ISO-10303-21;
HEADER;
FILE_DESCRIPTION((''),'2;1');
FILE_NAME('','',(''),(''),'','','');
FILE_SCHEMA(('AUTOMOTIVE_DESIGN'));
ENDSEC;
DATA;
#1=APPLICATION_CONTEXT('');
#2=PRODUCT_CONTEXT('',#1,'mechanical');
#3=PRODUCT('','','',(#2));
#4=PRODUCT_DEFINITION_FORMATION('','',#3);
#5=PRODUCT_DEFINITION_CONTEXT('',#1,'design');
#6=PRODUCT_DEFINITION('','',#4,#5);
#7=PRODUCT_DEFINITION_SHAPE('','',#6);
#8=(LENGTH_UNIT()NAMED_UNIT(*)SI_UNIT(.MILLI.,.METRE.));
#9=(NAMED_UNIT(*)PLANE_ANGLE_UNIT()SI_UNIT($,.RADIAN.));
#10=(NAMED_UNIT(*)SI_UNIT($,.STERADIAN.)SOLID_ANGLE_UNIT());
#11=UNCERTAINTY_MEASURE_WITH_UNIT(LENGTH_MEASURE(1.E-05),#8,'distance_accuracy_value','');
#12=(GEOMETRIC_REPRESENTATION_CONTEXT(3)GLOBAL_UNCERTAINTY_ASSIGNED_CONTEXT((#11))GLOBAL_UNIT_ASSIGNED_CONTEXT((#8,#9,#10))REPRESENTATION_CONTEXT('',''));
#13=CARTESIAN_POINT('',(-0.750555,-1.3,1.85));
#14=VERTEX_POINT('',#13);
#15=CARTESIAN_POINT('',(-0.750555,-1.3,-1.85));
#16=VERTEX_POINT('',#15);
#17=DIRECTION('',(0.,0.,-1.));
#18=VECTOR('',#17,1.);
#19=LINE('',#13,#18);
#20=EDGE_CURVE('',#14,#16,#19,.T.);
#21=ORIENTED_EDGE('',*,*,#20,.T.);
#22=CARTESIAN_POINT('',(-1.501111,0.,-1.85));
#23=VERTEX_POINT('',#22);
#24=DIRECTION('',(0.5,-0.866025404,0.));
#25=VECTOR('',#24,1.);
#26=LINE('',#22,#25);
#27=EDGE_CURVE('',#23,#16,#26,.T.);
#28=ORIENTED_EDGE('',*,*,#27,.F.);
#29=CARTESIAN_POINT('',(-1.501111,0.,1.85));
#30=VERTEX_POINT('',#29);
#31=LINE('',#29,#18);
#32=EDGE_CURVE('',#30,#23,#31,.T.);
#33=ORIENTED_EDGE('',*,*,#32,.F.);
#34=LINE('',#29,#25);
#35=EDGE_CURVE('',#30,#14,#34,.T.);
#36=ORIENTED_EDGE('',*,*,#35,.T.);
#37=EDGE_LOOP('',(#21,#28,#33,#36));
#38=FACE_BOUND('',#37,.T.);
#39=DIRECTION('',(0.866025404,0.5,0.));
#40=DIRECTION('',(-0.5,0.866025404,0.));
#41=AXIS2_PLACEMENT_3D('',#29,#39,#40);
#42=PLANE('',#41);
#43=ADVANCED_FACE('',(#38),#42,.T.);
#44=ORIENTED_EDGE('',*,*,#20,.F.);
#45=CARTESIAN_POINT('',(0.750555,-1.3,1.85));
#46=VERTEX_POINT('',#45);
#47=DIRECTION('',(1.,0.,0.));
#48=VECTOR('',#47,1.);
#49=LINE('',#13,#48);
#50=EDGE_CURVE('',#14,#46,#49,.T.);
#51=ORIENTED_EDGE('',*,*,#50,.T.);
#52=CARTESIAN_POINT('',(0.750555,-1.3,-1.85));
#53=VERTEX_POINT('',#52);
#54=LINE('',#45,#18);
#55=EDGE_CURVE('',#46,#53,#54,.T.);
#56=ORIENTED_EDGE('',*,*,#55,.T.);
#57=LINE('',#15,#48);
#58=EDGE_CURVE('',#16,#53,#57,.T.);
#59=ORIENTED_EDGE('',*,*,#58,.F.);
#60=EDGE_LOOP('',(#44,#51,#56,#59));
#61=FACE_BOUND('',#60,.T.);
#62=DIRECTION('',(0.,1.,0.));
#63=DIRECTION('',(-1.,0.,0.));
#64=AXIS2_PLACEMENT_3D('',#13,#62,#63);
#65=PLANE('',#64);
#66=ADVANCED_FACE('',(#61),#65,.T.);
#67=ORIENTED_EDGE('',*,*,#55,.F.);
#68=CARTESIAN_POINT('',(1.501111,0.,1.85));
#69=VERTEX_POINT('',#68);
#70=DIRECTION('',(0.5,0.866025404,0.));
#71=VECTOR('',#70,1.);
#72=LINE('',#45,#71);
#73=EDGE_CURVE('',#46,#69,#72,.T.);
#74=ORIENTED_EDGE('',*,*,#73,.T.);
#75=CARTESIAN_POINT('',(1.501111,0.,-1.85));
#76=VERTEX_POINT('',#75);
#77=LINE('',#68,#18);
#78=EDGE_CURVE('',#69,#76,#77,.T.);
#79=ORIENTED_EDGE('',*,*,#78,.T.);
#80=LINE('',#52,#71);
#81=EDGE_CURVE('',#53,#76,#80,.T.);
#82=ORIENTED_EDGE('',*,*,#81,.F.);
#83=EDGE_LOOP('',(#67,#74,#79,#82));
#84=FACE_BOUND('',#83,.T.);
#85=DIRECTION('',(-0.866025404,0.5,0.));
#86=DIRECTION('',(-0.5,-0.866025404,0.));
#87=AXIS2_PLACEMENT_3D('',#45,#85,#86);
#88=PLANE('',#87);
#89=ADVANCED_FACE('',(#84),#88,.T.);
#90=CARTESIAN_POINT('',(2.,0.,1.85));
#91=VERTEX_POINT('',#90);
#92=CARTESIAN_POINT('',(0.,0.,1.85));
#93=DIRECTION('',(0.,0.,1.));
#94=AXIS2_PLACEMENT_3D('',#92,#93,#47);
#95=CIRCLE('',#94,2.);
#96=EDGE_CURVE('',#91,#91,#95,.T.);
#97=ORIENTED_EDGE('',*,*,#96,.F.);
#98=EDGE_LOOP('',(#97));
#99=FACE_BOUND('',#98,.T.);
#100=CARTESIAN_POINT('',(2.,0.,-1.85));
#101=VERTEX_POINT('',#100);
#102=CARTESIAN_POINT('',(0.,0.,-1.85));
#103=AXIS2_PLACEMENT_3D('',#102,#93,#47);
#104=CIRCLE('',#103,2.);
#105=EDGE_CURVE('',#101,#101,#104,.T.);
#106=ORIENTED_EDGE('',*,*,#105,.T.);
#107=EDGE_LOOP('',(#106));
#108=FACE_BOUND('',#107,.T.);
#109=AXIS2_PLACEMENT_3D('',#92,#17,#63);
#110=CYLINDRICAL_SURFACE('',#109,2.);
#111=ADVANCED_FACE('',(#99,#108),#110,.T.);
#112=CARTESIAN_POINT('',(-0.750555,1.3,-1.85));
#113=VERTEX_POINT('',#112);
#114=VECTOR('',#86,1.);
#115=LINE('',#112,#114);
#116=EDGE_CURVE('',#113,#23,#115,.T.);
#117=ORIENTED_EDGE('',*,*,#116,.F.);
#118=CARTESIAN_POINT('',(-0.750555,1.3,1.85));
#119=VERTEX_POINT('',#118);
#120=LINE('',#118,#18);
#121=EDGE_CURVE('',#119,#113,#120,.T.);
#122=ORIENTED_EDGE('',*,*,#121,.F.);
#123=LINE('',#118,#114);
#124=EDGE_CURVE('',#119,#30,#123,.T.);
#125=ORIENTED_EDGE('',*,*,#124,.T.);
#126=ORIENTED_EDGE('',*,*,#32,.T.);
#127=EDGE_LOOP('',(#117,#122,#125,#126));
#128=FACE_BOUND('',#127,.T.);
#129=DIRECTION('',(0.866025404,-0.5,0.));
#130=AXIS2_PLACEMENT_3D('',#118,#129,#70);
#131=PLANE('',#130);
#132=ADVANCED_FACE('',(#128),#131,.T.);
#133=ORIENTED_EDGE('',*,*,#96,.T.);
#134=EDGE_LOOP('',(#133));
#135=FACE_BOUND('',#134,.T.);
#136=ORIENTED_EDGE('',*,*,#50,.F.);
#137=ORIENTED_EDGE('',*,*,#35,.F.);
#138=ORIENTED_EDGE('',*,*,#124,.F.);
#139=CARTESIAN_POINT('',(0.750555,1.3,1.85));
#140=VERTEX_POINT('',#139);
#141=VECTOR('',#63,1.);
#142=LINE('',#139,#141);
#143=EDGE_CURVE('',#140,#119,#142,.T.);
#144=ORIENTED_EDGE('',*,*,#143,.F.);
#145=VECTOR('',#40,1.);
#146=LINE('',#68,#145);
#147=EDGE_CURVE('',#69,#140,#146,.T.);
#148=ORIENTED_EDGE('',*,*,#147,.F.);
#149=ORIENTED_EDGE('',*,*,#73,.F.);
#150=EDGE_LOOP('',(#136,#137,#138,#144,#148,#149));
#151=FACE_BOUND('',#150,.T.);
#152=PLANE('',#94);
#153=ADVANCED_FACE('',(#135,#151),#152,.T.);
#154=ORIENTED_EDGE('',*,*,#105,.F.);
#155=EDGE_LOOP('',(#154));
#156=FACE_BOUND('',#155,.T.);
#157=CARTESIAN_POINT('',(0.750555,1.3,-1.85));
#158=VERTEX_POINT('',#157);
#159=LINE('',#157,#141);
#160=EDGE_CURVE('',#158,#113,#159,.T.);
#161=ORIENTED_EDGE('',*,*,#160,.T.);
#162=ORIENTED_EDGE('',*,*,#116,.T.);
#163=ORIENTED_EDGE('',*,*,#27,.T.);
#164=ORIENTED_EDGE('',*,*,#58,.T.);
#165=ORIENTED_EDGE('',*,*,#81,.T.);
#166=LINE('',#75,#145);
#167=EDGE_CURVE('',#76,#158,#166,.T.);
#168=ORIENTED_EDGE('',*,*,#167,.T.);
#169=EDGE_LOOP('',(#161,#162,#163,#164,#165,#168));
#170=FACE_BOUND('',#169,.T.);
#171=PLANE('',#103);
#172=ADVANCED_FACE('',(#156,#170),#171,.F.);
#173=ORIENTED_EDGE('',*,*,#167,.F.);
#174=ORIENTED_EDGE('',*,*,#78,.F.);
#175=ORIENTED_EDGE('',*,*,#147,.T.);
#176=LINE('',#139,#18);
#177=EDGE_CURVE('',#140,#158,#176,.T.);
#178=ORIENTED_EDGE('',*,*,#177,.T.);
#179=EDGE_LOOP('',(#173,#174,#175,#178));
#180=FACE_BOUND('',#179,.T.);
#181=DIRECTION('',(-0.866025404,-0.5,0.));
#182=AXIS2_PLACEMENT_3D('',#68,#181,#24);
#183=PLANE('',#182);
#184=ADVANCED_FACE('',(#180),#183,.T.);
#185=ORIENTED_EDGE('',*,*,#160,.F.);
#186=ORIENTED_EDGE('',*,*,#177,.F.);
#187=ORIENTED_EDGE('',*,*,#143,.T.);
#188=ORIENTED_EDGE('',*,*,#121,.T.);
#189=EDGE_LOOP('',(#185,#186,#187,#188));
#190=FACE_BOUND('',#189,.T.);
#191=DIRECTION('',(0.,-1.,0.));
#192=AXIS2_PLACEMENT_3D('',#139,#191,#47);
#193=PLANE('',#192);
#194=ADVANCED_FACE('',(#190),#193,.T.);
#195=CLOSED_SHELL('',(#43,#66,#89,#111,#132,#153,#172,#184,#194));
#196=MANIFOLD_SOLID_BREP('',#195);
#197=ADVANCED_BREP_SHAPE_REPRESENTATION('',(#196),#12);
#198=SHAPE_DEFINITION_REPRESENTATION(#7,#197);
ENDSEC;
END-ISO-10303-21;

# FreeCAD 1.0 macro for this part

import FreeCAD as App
import Part
import Sketcher
Q = App.Units.Quantity

doc = App.newDocument("Part")
body = doc.addObject("PartDesign::Body", "Body")

sketch1 = body.newObject("Sketcher::SketchObject", "Sketch")
sketch1.AttachmentSupport = (doc.getObject("XY_Plane"), [""])
sketch1.MapMode = "FlatFace"
sketch1.addGeometry(Part.Circle(App.Vector(0, 0, 0), App.Vector(0, 0, 1), 2), False)
sketch1.addGeometry(Part.LineSegment(App.Vector(0.8, 1.3, 0), App.Vector(1.5, 0, 0)), False)
sketch1.addGeometry(Part.LineSegment(App.Vector(1.5, 0, 0), App.Vector(0.8, -1.3, 0)), False)
sketch1.addGeometry(Part.LineSegment(App.Vector(0.8, -1.3, 0), App.Vector(-0.8, -1.3, 0)), False)
sketch1.addGeometry(Part.LineSegment(App.Vector(-0.8, -1.3, 0), App.Vector(-1.5, 0, 0)), False)
sketch1.addGeometry(Part.LineSegment(App.Vector(-1.5, 0, 0), App.Vector(-0.8, 1.3, 0)), False)
sketch1.addGeometry(Part.LineSegment(App.Vector(-0.8, 1.3, 0), App.Vector(0.8, 1.3, 0)), False)
sketch1.addConstraint(Sketcher.Constraint("Coincident", 1, 2, 2, 1))
sketch1.addConstraint(Sketcher.Constraint("Coincident", 2, 2, 3, 1))
sketch1.addConstraint(Sketcher.Constraint("Coincident", 3, 2, 4, 1))
sketch1.addConstraint(Sketcher.Constraint("Coincident", 4, 2, 5, 1))
sketch1.addConstraint(Sketcher.Constraint("Coincident", 5, 2, 6, 1))
sketch1.addConstraint(Sketcher.Constraint("Coincident", 6, 2, 1, 1))
sketch1.addConstraint(Sketcher.Constraint("Horizontal", 3))
sketch1.addConstraint(Sketcher.Constraint("Horizontal", 6))
sketch1.addConstraint(Sketcher.Constraint("Coincident", 0, 3, -1, 1))
sketch1.addConstraint(Sketcher.Constraint("Symmetric", 1, 2, 4, 2, -1, 1))
sketch1.addConstraint(Sketcher.Constraint("Symmetric", 2, 2, 5, 2, -1, 1))
sketch1.addConstraint(Sketcher.Constraint("PointOnObject", 1, 2, -1))
sketch1.addConstraint(Sketcher.Constraint("Parallel", 1, 4))
sketch1.addConstraint(Sketcher.Constraint("Vertical", 3, 2, 5, 2))
sketch1.addConstraint(Sketcher.Constraint("Diameter", 0, 4.0))
sketch1.addConstraint(Sketcher.Constraint("Angle", 1, Q("-60 deg")))
sketch1.addConstraint(Sketcher.Constraint("DistanceY", 2, 2, -1, 1, 1.3))
sketch1.addConstraint(Sketcher.Constraint("DistanceX", 3, 2, 3, 1, 1.501111))
pad1 = body.newObject("PartDesign::Pad", "Pad")
pad1.Profile = sketch1
pad1.Length = 3.7
pad1.Midplane = True

doc.recompute()
